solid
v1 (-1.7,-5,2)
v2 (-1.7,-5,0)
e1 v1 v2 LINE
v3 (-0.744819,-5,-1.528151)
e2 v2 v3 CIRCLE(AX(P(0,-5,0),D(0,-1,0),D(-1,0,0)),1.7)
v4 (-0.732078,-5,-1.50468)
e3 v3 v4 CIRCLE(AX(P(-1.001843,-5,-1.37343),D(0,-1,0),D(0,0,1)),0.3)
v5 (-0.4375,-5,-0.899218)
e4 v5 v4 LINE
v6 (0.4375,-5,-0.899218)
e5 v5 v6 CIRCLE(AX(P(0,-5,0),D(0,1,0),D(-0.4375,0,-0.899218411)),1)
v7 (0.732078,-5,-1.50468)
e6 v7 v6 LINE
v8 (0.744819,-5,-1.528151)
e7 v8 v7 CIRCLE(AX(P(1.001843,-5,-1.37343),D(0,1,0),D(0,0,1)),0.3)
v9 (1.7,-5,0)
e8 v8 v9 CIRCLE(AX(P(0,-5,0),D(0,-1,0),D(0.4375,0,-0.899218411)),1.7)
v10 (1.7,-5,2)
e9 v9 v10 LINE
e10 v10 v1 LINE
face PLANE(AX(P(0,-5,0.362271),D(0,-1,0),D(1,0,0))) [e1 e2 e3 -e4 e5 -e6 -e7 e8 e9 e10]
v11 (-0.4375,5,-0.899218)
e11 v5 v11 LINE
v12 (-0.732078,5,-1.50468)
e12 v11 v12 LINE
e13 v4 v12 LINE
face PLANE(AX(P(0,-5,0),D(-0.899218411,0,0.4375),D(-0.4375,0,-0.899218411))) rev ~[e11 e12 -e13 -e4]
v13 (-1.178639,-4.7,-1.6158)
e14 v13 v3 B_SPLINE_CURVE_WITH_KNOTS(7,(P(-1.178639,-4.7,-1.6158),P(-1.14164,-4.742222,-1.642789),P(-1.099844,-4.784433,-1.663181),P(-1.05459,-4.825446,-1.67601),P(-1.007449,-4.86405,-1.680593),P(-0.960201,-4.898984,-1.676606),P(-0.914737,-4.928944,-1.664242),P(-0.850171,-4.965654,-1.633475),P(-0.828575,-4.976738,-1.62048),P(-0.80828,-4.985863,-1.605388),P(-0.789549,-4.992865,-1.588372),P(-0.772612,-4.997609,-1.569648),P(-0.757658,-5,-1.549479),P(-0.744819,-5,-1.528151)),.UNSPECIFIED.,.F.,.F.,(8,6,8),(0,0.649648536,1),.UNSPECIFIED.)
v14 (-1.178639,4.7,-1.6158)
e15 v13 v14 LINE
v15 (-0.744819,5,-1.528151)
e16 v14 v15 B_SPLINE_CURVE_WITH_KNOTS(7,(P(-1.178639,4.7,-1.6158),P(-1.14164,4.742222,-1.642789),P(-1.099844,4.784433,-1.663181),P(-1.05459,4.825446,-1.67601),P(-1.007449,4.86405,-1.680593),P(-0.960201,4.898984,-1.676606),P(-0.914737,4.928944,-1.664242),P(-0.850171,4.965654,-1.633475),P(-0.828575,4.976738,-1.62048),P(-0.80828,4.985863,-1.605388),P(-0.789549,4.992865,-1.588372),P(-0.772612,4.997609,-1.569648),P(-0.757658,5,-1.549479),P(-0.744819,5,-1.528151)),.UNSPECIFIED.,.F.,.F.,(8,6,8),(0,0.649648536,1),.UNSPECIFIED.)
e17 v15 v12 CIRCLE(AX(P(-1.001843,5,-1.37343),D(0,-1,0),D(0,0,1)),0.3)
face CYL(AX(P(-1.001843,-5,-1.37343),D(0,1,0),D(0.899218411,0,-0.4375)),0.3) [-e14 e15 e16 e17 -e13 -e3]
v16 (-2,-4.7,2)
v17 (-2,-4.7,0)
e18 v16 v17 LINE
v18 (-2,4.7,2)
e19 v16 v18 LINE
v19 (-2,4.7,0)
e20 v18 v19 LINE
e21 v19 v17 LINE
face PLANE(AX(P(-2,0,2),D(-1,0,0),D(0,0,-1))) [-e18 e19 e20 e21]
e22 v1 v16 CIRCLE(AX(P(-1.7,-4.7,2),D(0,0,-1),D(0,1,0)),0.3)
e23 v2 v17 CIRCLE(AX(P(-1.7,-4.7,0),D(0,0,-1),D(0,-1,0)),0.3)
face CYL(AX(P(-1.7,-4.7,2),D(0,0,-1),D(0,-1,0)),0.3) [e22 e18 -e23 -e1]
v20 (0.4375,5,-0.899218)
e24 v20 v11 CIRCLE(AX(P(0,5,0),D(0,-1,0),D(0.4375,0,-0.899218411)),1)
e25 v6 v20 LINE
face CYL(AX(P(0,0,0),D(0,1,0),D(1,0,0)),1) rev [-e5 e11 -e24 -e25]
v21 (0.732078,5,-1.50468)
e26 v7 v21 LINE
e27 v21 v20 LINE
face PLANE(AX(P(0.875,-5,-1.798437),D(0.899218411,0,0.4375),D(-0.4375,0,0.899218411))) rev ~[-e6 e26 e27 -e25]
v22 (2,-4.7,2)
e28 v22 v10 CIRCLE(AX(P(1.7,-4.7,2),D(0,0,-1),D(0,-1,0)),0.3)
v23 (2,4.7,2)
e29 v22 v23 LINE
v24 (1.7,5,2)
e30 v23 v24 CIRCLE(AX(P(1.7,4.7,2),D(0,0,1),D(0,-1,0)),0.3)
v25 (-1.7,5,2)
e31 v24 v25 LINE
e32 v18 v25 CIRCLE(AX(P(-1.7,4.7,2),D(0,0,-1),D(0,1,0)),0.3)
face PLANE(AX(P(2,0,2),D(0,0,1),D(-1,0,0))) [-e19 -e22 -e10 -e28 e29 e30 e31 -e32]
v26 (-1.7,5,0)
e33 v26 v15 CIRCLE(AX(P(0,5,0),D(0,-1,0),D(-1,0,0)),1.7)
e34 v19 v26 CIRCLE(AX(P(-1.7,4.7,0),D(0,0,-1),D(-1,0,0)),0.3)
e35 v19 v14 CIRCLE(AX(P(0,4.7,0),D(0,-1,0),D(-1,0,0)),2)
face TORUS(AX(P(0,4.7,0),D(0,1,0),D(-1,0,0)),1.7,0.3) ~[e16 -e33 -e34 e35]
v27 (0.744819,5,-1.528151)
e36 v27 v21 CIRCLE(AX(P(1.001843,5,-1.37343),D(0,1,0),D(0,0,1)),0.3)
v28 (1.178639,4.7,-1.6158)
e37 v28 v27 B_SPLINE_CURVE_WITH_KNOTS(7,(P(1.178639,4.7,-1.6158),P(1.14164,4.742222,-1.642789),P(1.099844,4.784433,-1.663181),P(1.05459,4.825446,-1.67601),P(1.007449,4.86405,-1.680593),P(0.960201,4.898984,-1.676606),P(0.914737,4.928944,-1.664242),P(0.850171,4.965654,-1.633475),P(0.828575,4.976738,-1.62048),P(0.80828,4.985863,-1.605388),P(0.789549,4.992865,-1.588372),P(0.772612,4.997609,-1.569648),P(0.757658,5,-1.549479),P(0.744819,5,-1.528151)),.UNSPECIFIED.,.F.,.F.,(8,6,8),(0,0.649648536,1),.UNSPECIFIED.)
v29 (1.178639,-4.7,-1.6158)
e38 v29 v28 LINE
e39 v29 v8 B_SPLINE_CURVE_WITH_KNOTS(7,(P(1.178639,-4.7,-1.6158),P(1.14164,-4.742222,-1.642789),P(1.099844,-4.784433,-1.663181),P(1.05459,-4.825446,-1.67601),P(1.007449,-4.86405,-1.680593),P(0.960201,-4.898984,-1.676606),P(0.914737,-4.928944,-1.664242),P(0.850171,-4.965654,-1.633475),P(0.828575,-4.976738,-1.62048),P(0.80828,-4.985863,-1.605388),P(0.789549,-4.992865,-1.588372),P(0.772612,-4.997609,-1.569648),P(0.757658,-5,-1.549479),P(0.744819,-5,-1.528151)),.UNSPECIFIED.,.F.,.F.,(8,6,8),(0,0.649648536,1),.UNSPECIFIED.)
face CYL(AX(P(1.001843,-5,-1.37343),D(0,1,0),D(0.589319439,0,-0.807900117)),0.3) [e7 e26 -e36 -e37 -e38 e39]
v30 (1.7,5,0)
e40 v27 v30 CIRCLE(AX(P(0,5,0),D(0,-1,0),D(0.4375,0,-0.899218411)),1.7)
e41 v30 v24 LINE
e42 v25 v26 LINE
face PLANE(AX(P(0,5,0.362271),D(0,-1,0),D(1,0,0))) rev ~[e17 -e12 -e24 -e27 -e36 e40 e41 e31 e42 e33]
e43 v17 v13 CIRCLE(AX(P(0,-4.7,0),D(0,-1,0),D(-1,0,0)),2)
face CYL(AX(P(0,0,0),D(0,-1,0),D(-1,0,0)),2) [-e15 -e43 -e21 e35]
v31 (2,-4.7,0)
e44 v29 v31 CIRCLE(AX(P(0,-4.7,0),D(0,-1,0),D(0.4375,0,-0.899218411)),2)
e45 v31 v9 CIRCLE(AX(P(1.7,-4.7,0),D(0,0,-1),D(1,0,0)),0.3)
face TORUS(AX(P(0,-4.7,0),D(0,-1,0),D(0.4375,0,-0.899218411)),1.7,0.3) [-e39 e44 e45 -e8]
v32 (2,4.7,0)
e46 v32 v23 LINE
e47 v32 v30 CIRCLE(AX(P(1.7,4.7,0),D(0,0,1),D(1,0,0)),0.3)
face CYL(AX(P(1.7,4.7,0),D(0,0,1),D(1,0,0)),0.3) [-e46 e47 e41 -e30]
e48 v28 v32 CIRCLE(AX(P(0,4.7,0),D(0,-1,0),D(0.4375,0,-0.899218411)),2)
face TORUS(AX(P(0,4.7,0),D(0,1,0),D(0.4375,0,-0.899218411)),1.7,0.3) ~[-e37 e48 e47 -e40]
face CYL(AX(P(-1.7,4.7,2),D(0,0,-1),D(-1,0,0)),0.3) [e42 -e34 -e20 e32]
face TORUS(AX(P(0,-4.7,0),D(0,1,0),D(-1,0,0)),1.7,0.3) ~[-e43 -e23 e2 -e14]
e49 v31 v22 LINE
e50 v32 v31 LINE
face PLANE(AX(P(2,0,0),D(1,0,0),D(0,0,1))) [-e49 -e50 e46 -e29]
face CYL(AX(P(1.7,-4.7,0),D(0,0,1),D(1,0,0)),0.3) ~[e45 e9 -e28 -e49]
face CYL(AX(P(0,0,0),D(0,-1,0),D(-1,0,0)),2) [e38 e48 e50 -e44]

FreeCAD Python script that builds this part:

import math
import FreeCAD as App
import Part
import Sketcher
from FreeCAD import Vector


def edges_at(feature, points):
    """Names of the edges that pass closest to the given points."""
    edges = feature.Shape.Edges
    near = lambda p: min(range(len(edges)), key=lambda i: edges[i].distToShape(Part.Vertex(*p))[0])
    return sorted({f"Edge{near(p) + 1}" for p in points})

doc = App.newDocument("Part")
params = doc.addObject("Spreadsheet::Sheet", "Params")
for row, (alias, value) in enumerate([
    ("sketch1_diameter", "2 mm"),
    ("sketch1_radius", "2 mm"),
    ("sketch1_height", "2 mm"),
    ("pad1_length", "10 mm"),
    ("sketch2_radius", "2 mm"),
    ("fillet_radius", "0.3 mm"),
], start=1):
    params.set(f"A{row}", alias)
    params.set(f"B{row}", "=" + value)
    params.setAlias(f"B{row}", alias)

body = doc.addObject("PartDesign::Body", "Body")

# Sketch on XZ plane
sketch1 = body.newObject("Sketcher::SketchObject", "Sketch")
sketch1.AttachmentSupport = (doc.getObject("XZ_Plane"), [""])
sketch1.MapMode = "FlatFace"
sketch1.addGeometry([
    Part.LineSegment(Vector(-2, 2, 0), Vector(-2, 0, 0)),  # 0
    Part.ArcOfCircle(Part.Circle(Vector(0, 0, 0), Vector(0, 0, 1), 2), math.radians(180), math.radians(360)),  # 1
    Part.LineSegment(Vector(2, 0, 0), Vector(2, 2, 0)),  # 2
    Part.LineSegment(Vector(2, 2, 0), Vector(-2, 2, 0)),  # 3
    Part.Circle(Vector(0, 0, 0), Vector(0, 0, 1), 1),  # 4
], False)
sketch1.addConstraint([
    Sketcher.Constraint("Tangent", 0, 2, 1, 1),
    Sketcher.Constraint("Tangent", 1, 2, 2, 1),
    Sketcher.Constraint("Coincident", 2, 2, 3, 1),
    Sketcher.Constraint("Coincident", 3, 2, 0, 1),
    Sketcher.Constraint("Vertical", 0),
    Sketcher.Constraint("Vertical", 2),
    Sketcher.Constraint("Horizontal", 3),
    Sketcher.Constraint("Coincident", 1, 3, -1, 1),
    Sketcher.Constraint("Coincident", 4, 3, -1, 1),
    Sketcher.Constraint("Diameter", 4, 2.0),
    Sketcher.Constraint("Radius", 1, 2.0),
    Sketcher.Constraint("DistanceY", 0, 2, 0, 1, 2.0),
])
sketch1.setExpression("Constraints[9]", "Params.sketch1_diameter")
sketch1.setExpression("Constraints[10]", "Params.sketch1_radius")
sketch1.setExpression("Constraints[11]", "Params.sketch1_height")
pad1 = body.newObject("PartDesign::Pad", "Pad")
pad1.Profile = sketch1
pad1.setExpression("Length", "Params.pad1_length")
pad1.Midplane = True

# Sketch on XZ plane
sketch2 = body.newObject("Sketcher::SketchObject", "Sketch001")
sketch2.AttachmentSupport = (doc.getObject("XZ_Plane"), [""])
sketch2.MapMode = "FlatFace"
sketch2.AttachmentOffset = App.Placement(Vector(0, 0, 5), App.Rotation())
sketch2.addGeometry([
    Part.LineSegment(Vector(0.9, -1.8, 0), Vector(0, 0, 0)),
    Part.LineSegment(Vector(0, 0, 0), Vector(-0.9, -1.8, 0)),
    Part.ArcOfCircle(Part.Circle(Vector(0, 0, 0), Vector(0, 0, 1), 2), math.radians(-116), math.radians(-64)),
], False)
sketch2.addConstraint([
    Sketcher.Constraint("Coincident", 0, 2, 1, 1),
    Sketcher.Constraint("Coincident", 1, 2, 2, 1),
    Sketcher.Constraint("Coincident", 2, 2, 0, 1),
    Sketcher.Constraint("Coincident", 2, 3, -1, 1),
    Sketcher.Constraint("Coincident", 0, 2, -1, 1),
    Sketcher.Constraint("Horizontal", 1, 2, 2, 2),
    Sketcher.Constraint("Radius", 2, 2.0),
    Sketcher.Constraint("DistanceX", 1, 2, 2, 2, 1.75),
])
sketch2.setExpression("Constraints[6]", "Params.sketch2_radius")
pocket1 = body.newObject("PartDesign::Pocket", "Pocket")
pocket1.Profile = sketch2
pocket1.Type = "ThroughAll"
doc.recompute()

fillet = body.newObject("PartDesign::Fillet", "Fillet")
fillet.Base = (pocket1, edges_at(pocket1, [
    (-0.875, 0, -1.798),
    (0.875, 0, -1.798),
    (-1.696, -5, -1.061),
    (-2, -5, 1),
    (1.696, -5, -1.061),
    (1.696, 5, -1.061),
    (2, 5, 1),
    (-1.696, 5, -1.061),
    (-2, 5, 1),
]))
fillet.setExpression("Radius", "Params.fillet_radius")

doc.recompute()
